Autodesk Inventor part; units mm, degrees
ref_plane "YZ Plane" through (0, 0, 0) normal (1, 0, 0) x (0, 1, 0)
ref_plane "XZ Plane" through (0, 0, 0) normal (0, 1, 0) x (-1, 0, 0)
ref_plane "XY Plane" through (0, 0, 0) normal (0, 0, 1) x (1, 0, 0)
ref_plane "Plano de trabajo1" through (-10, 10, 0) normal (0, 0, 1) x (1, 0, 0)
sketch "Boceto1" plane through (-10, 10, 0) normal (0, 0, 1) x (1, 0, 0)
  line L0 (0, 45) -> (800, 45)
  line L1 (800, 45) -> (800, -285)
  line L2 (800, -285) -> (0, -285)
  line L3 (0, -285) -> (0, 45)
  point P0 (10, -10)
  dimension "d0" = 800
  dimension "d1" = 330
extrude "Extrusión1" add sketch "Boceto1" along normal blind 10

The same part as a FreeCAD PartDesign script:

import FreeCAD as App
import Part
import Sketcher
from FreeCAD import Vector


def add_polygon(sketch, points):
    """Adds a closed chain of lines whose ends are joined by coincident constraints."""
    first, n = sketch.GeometryCount, len(points)
    for a, b in zip(points, points[1:] + points[:1]):
        sketch.addGeometry(Part.LineSegment(App.Vector(*a, 0), App.Vector(*b, 0)), False)
    for i in range(n):
        sketch.addConstraint(Sketcher.Constraint("Coincident", first + i, 2, first + (i + 1) % n, 1))

doc = App.newDocument("Part")
body = doc.addObject("PartDesign::Body", "Body")

# Sketch on XY plane
sketch1 = doc.addObject("Sketcher::SketchObject", "Sketch")
body.addObject(sketch1)
sketch1.AttachmentSupport = (doc.XY_Plane, [""])
sketch1.MapMode = "FlatFace"
add_polygon(sketch1, [(790, 55), (-10, 55), (-10, -275), (790, -275)])  # lines 0-3
sketch1.addConstraint(Sketcher.Constraint("Horizontal", 0))
sketch1.addConstraint(Sketcher.Constraint("Vertical", 1))
sketch1.addConstraint(Sketcher.Constraint("Horizontal", 2))
sketch1.addConstraint(Sketcher.Constraint("Vertical", 3))
sketch1.addConstraint(Sketcher.Constraint("DistanceX", 0, 2, 0, 1, 800.0))
sketch1.addConstraint(Sketcher.Constraint("DistanceY", 1, 2, 1, 1, 330.0))
sketch1.addConstraint(Sketcher.Constraint("DistanceX", 0, 2, -1, 1, 10.0))
sketch1.addConstraint(Sketcher.Constraint("DistanceY", -1, 1, 0, 2, 55.0))
pad1 = doc.addObject("PartDesign::Pad", "Pad")
body.addObject(pad1)
pad1.Profile = sketch1
pad1.Length = 10

doc.recompute()
